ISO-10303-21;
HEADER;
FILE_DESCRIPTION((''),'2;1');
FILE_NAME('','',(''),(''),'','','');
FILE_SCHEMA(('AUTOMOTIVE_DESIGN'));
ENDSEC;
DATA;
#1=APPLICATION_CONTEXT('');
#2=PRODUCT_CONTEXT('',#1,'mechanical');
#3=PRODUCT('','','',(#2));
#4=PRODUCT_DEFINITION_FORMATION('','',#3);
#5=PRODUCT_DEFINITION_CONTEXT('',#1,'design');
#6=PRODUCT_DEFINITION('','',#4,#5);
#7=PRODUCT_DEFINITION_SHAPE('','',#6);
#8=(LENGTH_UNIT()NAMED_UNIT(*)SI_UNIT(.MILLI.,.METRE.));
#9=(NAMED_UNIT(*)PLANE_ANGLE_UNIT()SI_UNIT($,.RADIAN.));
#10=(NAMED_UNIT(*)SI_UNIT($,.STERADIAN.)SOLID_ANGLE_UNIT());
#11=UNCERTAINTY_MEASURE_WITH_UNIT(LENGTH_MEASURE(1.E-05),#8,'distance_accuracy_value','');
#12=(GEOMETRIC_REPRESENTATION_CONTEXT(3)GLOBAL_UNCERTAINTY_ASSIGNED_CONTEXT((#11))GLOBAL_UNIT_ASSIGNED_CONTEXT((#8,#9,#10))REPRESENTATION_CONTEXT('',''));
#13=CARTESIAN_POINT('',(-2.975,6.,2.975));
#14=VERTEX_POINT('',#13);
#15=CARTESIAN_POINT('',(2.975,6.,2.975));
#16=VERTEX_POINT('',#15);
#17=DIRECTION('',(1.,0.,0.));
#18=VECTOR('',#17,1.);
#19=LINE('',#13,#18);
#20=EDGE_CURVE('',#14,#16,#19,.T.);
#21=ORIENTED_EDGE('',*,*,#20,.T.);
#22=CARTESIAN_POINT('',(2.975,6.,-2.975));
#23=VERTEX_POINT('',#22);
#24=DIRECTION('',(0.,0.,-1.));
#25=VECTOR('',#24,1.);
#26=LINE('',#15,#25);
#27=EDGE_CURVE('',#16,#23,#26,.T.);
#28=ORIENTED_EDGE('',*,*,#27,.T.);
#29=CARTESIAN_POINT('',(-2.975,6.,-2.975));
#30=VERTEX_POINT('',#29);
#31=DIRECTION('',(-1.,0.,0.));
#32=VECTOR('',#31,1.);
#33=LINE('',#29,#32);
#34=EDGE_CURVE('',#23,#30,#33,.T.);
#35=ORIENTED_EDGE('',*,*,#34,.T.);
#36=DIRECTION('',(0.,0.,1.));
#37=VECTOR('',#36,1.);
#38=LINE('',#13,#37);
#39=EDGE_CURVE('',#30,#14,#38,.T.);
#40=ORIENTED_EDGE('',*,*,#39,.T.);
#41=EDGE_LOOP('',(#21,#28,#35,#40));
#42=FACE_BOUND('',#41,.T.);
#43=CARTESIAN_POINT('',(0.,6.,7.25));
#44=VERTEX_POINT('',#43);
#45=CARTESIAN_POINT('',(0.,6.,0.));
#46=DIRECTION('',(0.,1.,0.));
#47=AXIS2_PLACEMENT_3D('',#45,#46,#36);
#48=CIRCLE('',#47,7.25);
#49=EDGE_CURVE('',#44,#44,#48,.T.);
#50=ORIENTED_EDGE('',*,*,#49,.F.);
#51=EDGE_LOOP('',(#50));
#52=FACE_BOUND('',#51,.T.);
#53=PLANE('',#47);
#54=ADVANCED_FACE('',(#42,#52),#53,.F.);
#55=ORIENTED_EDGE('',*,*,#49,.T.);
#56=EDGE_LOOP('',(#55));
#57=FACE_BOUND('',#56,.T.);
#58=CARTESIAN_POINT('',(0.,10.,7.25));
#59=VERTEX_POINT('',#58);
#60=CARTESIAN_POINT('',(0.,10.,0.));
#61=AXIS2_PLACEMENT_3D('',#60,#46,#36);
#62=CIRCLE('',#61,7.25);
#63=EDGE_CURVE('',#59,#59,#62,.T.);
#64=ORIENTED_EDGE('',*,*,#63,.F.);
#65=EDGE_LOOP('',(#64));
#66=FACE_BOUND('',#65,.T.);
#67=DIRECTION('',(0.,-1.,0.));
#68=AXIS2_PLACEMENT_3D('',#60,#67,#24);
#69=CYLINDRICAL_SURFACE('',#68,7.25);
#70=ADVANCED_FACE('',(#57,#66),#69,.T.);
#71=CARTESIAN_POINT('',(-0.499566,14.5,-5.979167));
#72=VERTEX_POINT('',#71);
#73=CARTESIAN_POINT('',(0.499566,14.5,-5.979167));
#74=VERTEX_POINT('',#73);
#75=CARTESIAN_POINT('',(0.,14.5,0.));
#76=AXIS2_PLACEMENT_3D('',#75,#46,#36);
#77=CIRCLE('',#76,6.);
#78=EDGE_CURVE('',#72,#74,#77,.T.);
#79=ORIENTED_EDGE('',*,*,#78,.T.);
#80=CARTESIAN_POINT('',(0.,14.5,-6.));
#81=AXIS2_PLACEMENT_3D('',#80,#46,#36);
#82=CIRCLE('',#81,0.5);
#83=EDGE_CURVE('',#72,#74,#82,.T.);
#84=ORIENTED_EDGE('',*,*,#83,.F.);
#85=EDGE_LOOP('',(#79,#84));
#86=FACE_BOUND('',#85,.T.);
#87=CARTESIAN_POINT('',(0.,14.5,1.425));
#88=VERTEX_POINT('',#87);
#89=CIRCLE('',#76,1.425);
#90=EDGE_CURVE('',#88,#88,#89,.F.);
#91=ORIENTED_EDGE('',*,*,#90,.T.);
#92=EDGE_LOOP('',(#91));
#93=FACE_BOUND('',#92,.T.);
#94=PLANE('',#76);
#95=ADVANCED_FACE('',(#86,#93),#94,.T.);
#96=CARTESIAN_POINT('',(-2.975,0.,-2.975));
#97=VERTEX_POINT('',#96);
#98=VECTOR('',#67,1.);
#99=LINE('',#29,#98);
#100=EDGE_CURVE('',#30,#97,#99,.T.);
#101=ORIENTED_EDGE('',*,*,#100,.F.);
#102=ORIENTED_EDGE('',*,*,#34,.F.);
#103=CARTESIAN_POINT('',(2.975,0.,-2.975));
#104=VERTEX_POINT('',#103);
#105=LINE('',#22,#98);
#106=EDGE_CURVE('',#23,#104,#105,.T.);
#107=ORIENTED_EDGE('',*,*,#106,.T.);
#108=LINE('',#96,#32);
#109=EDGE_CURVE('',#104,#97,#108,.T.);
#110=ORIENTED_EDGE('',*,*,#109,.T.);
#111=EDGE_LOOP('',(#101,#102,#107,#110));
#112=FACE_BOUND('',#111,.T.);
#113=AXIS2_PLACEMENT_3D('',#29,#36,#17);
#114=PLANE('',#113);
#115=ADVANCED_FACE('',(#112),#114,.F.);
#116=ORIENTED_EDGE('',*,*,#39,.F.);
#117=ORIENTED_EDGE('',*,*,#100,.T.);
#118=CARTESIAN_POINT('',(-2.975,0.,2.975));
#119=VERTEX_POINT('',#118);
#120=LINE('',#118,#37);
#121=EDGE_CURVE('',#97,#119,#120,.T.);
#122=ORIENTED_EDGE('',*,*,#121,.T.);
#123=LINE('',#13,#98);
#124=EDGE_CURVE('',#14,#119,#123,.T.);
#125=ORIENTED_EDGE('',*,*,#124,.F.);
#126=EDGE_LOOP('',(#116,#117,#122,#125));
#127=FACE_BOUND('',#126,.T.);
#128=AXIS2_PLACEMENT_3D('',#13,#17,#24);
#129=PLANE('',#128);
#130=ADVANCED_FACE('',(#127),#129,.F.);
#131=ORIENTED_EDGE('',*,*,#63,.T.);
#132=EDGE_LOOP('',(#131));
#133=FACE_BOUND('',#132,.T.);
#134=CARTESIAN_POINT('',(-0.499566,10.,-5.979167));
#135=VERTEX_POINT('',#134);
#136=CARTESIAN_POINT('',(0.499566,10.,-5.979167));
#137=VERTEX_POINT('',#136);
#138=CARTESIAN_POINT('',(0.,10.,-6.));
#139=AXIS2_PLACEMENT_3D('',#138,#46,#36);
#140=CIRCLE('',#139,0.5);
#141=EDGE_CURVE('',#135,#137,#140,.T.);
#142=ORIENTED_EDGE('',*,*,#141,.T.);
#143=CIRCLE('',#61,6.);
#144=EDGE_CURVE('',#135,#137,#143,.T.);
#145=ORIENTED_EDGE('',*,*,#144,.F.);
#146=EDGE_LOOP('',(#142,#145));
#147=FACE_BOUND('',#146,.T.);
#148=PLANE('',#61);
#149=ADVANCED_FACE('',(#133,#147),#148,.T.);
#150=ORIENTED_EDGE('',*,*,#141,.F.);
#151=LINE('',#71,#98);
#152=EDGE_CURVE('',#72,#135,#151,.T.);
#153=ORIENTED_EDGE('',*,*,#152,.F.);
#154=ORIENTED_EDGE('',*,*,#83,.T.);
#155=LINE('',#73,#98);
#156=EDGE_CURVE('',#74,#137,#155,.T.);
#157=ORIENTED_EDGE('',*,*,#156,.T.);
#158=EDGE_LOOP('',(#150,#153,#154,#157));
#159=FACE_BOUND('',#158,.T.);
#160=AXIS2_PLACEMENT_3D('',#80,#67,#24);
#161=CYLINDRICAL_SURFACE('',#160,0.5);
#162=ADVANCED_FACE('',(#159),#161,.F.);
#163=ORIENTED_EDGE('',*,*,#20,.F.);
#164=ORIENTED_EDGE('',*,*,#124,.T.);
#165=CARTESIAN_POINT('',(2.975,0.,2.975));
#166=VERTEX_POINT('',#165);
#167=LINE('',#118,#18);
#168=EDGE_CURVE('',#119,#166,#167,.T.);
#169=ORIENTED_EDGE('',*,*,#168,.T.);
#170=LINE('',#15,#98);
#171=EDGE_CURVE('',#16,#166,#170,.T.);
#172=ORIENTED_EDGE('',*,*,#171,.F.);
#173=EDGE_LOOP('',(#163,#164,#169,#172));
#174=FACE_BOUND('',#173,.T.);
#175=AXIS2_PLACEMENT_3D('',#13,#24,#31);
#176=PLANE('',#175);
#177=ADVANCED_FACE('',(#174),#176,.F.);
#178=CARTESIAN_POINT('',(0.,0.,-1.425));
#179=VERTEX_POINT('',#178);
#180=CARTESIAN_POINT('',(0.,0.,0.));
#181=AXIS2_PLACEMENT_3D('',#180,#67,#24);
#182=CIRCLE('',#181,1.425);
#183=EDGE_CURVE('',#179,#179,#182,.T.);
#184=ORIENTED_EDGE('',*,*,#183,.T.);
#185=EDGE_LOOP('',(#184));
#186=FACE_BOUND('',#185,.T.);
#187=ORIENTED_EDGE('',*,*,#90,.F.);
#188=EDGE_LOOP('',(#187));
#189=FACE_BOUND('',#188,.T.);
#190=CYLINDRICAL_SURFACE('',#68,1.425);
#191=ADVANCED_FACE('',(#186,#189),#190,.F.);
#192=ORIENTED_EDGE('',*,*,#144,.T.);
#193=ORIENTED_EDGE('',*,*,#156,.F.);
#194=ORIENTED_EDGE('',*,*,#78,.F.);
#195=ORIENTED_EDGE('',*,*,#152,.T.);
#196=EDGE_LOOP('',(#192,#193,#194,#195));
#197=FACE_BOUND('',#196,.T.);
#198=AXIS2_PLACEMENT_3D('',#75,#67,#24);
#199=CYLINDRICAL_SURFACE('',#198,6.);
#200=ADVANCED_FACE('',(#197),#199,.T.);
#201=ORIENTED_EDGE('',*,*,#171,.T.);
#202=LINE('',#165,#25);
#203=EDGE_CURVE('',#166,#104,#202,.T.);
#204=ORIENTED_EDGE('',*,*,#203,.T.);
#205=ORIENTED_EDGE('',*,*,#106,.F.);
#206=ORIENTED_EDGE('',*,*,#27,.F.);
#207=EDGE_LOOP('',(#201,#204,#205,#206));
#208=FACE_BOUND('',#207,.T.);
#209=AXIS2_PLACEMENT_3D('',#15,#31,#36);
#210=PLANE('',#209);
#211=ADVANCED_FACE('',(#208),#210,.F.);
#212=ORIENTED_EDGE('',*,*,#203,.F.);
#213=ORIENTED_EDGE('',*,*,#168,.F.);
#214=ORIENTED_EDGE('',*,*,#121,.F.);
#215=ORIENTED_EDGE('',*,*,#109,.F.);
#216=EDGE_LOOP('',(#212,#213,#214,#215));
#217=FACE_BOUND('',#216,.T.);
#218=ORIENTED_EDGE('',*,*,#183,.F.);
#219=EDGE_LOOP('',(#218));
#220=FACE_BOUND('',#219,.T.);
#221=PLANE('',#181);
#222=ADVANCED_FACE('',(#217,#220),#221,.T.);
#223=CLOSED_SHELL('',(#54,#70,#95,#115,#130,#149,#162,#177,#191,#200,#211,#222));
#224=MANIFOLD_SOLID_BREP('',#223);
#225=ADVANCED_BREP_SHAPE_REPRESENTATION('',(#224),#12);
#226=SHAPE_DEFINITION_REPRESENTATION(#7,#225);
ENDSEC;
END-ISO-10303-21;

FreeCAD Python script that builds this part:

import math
import FreeCAD as App
import Part
import Sketcher

doc = App.newDocument("Part")
body = doc.addObject("PartDesign::Body", "Body")

# Sketch on XZ plane
sketch1 = body.newObject("Sketcher::SketchObject", "Sketch")
sketch1.AttachmentSupport = (doc.getObject("XZ_Plane"), [""])
sketch1.MapMode = "FlatFace"
sketch1.addGeometry([
    Part.LineSegment(App.Vector(-3, -3, 0), App.Vector(-3, 3, 0)),
    Part.LineSegment(App.Vector(-3, 3, 0), App.Vector(3, 3, 0)),
    Part.LineSegment(App.Vector(3, 3, 0), App.Vector(3, -3, 0)),
    Part.LineSegment(App.Vector(3, -3, 0), App.Vector(-3, -3, 0)),
], False)
sketch1.addConstraint([
    Sketcher.Constraint("Coincident", 0, 2, 1, 1),
    Sketcher.Constraint("Coincident", 1, 2, 2, 1),
    Sketcher.Constraint("Coincident", 2, 2, 3, 1),
    Sketcher.Constraint("Coincident", 3, 2, 0, 1),
    Sketcher.Constraint("Vertical", 0),
    Sketcher.Constraint("Horizontal", 1),
    Sketcher.Constraint("Vertical", 2),
    Sketcher.Constraint("Horizontal", 3),
    Sketcher.Constraint("Symmetric", 0, 2, 2, 2, -1, 1),
    Sketcher.Constraint("Equal", 3, 0),
    Sketcher.Constraint("DistanceX", 1, 1, 1, 2, 5.95),
])
pad1 = body.newObject("PartDesign::Pad", "Pad")
pad1.Profile = sketch1
pad1.Length = 6
pad1.Reversed = True

# Sketch on XZ plane
sketch2 = body.newObject("Sketcher::SketchObject", "Sketch001")
sketch2.AttachmentSupport = (doc.getObject("XZ_Plane"), [""])
sketch2.MapMode = "FlatFace"
sketch2.AttachmentOffset = App.Placement(App.Vector(0, 0, -6), App.Rotation())
sketch2.addGeometry(Part.Circle(App.Vector(0, 0, 0), App.Vector(0, 0, 1), 7), False)
sketch2.addConstraint([
    Sketcher.Constraint("Coincident", 0, 3, -1, 1),
    Sketcher.Constraint("Diameter", 0, 14.5),
])
pad2 = body.newObject("PartDesign::Pad", "Pad001")
pad2.Profile = sketch2
pad2.Length = 4
pad2.Reversed = True

# Sketch on XZ plane
sketch3 = body.newObject("Sketcher::SketchObject", "Sketch002")
sketch3.AttachmentSupport = (doc.getObject("XZ_Plane"), [""])
sketch3.MapMode = "FlatFace"
sketch3.addGeometry(Part.Circle(App.Vector(0, 0, 0), App.Vector(0, 0, 1), 1.4), False)
sketch3.addConstraint([
    Sketcher.Constraint("Coincident", 0, 3, -1, 1),
    Sketcher.Constraint("Diameter", 0, 2.85),
])
pocket1 = body.newObject("PartDesign::Pocket", "Pocket")
pocket1.Profile = sketch3
pocket1.Type = "ThroughAll"

# Sketch on XZ plane
sketch4 = body.newObject("Sketcher::SketchObject", "Sketch003")
sketch4.AttachmentSupport = (doc.getObject("XZ_Plane"), [""])
sketch4.MapMode = "FlatFace"
sketch4.AttachmentOffset = App.Placement(App.Vector(0, 0, -10), App.Rotation())
sketch4.addGeometry([
    Part.ArcOfCircle(Part.Circle(App.Vector(0, 0, 0), App.Vector(0, 0, 1), 6), math.radians(0), math.radians(265)),
    Part.ArcOfCircle(Part.Circle(App.Vector(0, 0, 0), App.Vector(0, 0, 1), 6), math.radians(-85), math.radians(0)),
    Part.ArcOfCircle(Part.Circle(App.Vector(0, -6, 0), App.Vector(0, 0, 1), 0.5), math.radians(2), math.radians(178)),
    Part.Circle(App.Vector(0, 0, 0), App.Vector(0, 0, 1), 1.4),
], False)
sketch4.addConstraint([
    Sketcher.Constraint("Tangent", 0, 1, 1, 2),
    Sketcher.Constraint("Coincident", 1, 1, 2, 1),
    Sketcher.Constraint("Coincident", 2, 2, 0, 2),
    Sketcher.Constraint("Coincident", 0, 3, -1, 1),
    Sketcher.Constraint("Coincident", 3, 3, -1, 1),
    Sketcher.Constraint("Equal", 0, 1),
    Sketcher.Constraint("PointOnObject", 2, 3, -2),
    Sketcher.Constraint("PointOnObject", 0, 1, -1),
    Sketcher.Constraint("Radius", 0, 6.0),
    Sketcher.Constraint("Radius", 2, 0.5),
    Sketcher.Constraint("Diameter", 3, 2.85),
    Sketcher.Constraint("DistanceY", 2, 3, -1, 1, 6.0),
])
pad3 = body.newObject("PartDesign::Pad", "Pad002")
pad3.Profile = sketch4
pad3.Length = 4.5
pad3.Reversed = True

doc.recompute()
